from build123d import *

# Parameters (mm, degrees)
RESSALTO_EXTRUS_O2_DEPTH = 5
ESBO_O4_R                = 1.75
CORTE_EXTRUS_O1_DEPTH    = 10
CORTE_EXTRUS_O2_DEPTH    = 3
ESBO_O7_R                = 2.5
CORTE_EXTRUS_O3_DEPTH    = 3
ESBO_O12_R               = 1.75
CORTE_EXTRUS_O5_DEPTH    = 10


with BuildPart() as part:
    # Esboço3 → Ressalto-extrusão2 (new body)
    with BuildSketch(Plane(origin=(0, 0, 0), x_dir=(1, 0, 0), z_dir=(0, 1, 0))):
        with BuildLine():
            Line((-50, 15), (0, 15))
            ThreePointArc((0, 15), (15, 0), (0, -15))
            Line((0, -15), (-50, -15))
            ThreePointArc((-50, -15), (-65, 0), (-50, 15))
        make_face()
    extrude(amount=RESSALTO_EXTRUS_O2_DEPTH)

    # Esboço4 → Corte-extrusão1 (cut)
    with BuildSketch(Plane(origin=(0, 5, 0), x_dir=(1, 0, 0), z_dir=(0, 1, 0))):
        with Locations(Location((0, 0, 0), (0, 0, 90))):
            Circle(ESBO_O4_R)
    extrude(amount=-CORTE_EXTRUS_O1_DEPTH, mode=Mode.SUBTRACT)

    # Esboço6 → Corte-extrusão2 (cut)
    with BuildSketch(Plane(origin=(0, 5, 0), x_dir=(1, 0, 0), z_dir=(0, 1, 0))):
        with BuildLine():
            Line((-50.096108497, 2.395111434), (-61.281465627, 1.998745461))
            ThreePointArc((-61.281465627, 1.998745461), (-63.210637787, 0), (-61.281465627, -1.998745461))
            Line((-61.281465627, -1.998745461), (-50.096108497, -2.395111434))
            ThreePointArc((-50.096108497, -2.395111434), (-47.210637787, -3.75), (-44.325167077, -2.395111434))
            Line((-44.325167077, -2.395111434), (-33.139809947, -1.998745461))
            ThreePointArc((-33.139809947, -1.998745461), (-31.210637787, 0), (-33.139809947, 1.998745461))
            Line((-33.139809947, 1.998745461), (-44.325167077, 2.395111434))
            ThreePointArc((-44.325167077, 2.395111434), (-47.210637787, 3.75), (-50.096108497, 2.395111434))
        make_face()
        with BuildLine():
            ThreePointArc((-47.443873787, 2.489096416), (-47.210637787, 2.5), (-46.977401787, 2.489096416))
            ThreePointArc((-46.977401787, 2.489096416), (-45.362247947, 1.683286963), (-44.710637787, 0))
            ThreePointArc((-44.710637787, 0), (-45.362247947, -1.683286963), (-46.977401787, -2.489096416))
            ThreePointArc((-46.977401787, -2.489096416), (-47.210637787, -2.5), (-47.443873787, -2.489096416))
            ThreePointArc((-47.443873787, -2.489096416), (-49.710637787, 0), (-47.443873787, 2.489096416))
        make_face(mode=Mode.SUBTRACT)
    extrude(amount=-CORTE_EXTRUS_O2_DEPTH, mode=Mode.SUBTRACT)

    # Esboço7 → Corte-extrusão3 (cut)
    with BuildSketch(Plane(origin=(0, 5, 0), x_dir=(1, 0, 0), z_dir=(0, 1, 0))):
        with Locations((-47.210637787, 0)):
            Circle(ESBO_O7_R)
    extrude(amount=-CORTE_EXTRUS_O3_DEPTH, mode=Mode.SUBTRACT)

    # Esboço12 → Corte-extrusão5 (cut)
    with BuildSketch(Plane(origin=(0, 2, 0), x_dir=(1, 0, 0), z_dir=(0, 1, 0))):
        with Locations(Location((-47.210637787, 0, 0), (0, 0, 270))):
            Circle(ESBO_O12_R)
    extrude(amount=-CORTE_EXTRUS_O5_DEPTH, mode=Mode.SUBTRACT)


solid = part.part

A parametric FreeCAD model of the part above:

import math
import FreeCAD as App
import Part
import Sketcher
from FreeCAD import Vector

doc = App.newDocument("Part")
body = doc.addObject("PartDesign::Body", "Body")

# Sketch on XZ plane
sketch1 = body.newObject("Sketcher::SketchObject", "Sketch")
sketch1.AttachmentSupport = (doc.getObject("XZ_Plane"), [""])
sketch1.MapMode = "FlatFace"
sketch1.addGeometry(Part.LineSegment(Vector(0, -15, 0), Vector(-50, -15, 0)), False)
sketch1.addGeometry(Part.ArcOfCircle(Part.Circle(Vector(-50, 0, 0), Vector(0, 0, 1), 15), math.radians(90), math.radians(270)), False)
sketch1.addGeometry(Part.LineSegment(Vector(-50, 15, 0), Vector(0, 15, 0)), False)
sketch1.addGeometry(Part.ArcOfCircle(Part.Circle(Vector(0, 0, 0), Vector(0, 0, 1), 15), math.radians(-90), math.radians(90)), False)
sketch1.addConstraint(Sketcher.Constraint("Tangent", 0, 2, 1, 2))
sketch1.addConstraint(Sketcher.Constraint("Tangent", 1, 1, 2, 1))
sketch1.addConstraint(Sketcher.Constraint("Tangent", 2, 2, 3, 2))
sketch1.addConstraint(Sketcher.Constraint("Tangent", 3, 1, 0, 1))
sketch1.addConstraint(Sketcher.Constraint("Horizontal", 0))
sketch1.addConstraint(Sketcher.Constraint("Horizontal", 2))
sketch1.addConstraint(Sketcher.Constraint("Coincident", 3, 3, -1, 1))
sketch1.addConstraint(Sketcher.Constraint("Radius", 1, 15.0))
sketch1.addConstraint(Sketcher.Constraint("DistanceX", 0, 2, 0, 1, 50.0))
pad1 = body.newObject("PartDesign::Pad", "Pad")
pad1.Profile = sketch1
pad1.Length = 5
pad1.Reversed = True

# Sketch on XZ plane
sketch2 = body.newObject("Sketcher::SketchObject", "Sketch001")
sketch2.AttachmentSupport = (doc.getObject("XZ_Plane"), [""])
sketch2.MapMode = "FlatFace"
sketch2.AttachmentOffset = App.Placement(Vector(0, 0, -5), App.Rotation())
sketch2.addGeometry(Part.Circle(Vector(0, 0, 0), Vector(0, 0, 1), 1.8), False)
sketch2.addConstraint(Sketcher.Constraint("Coincident", 0, 3, -1, 1))
sketch2.addConstraint(Sketcher.Constraint("Diameter", 0, 3.5))
pocket1 = body.newObject("PartDesign::Pocket", "Pocket")
pocket1.Profile = sketch2
pocket1.Length = 10
pocket1.Reversed = True

# Sketch on XZ plane
sketch3 = body.newObject("Sketcher::SketchObject", "Sketch002")
sketch3.AttachmentSupport = (doc.getObject("XZ_Plane"), [""])
sketch3.MapMode = "FlatFace"
sketch3.AttachmentOffset = App.Placement(Vector(0, 0, -5), App.Rotation())
sketch3.addGeometry(Part.LineSegment(Vector(-50.1, -2.4, 0), Vector(-61.28, -2, 0)), False)
sketch3.addGeometry(Part.ArcOfCircle(Part.Circle(Vector(-61.21, 0, 0), Vector(0, 0, 1), 2), math.radians(92), math.radians(268)), False)
sketch3.addGeometry(Part.LineSegment(Vector(-61.28, 2, 0), Vector(-50.1, 2.4, 0)), False)
sketch3.addGeometry(Part.ArcOfCircle(Part.Circle(Vector(-47.21, 0, 0), Vector(0, 0, 1), 3.75), math.radians(40), math.radians(140)), False)
sketch3.addGeometry(Part.LineSegment(Vector(-44.33, 2.4, 0), Vector(-33.14, 2, 0)), False)
sketch3.addGeometry(Part.ArcOfCircle(Part.Circle(Vector(-33.21, 0, 0), Vector(0, 0, 1), 2), math.radians(-88), math.radians(88)), False)
sketch3.addGeometry(Part.LineSegment(Vector(-33.14, -2, 0), Vector(-44.33, -2.4, 0)), False)
sketch3.addGeometry(Part.ArcOfCircle(Part.Circle(Vector(-47.21, 0, 0), Vector(0, 0, 1), 3.75), math.radians(-140), math.radians(-40)), False)
sketch3.addGeometry(Part.ArcOfCircle(Part.Circle(Vector(-47.21, 0, 0), Vector(0, 0, 1), 2.5), math.radians(95), math.radians(265)), False)
sketch3.addGeometry(Part.ArcOfCircle(Part.Circle(Vector(-47.21, 0, 0), Vector(0, 0, 1), 2.5), math.radians(-95.35), math.radians(-84.65)), False)
sketch3.addGeometry(Part.ArcOfCircle(Part.Circle(Vector(-47.21, 0, 0), Vector(0, 0, 1), 2.5), math.radians(-85), math.radians(0)), False)
sketch3.addGeometry(Part.ArcOfCircle(Part.Circle(Vector(-47.21, 0, 0), Vector(0, 0, 1), 2.5), math.radians(0), math.radians(85)), False)
sketch3.addGeometry(Part.ArcOfCircle(Part.Circle(Vector(-47.21, 0, 0), Vector(0, 0, 1), 2.5), math.radians(84.65), math.radians(95.35)), False)
sketch3.addConstraint(Sketcher.Constraint("Tangent", 0, 2, 1, 2))
sketch3.addConstraint(Sketcher.Constraint("Tangent", 1, 1, 2, 1))
sketch3.addConstraint(Sketcher.Constraint("Coincident", 2, 2, 3, 2))
sketch3.addConstraint(Sketcher.Constraint("Coincident", 3, 1, 4, 1))
sketch3.addConstraint(Sketcher.Constraint("Tangent", 4, 2, 5, 2))
sketch3.addConstraint(Sketcher.Constraint("Tangent", 5, 1, 6, 1))
sketch3.addConstraint(Sketcher.Constraint("Coincident", 6, 2, 7, 2))
sketch3.addConstraint(Sketcher.Constraint("Coincident", 7, 1, 0, 1))
sketch3.addConstraint(Sketcher.Constraint("Tangent", 8, 2, 9, 1))
sketch3.addConstraint(Sketcher.Constraint("Tangent", 9, 2, 10, 1))
sketch3.addConstraint(Sketcher.Constraint("Tangent", 10, 2, 11, 1))
sketch3.addConstraint(Sketcher.Constraint("Tangent", 11, 2, 12, 1))
sketch3.addConstraint(Sketcher.Constraint("Tangent", 12, 2, 8, 1))
sketch3.addConstraint(Sketcher.Constraint("Coincident", 7, 3, 3, 3))
sketch3.addConstraint(Sketcher.Constraint("Coincident", 8, 3, 3, 3))
sketch3.addConstraint(Sketcher.Constraint("Coincident", 10, 3, 3, 3))
sketch3.addConstraint(Sketcher.Constraint("Equal", 1, 5))
sketch3.addConstraint(Sketcher.Constraint("Equal", 3, 7))
sketch3.addConstraint(Sketcher.Constraint("Symmetric", 0, 2, 1, 1, -1))
sketch3.addConstraint(Sketcher.Constraint("Symmetric", 4, 2, 5, 1, -1))
sketch3.addConstraint(Sketcher.Constraint("Symmetric", 9, 2, 11, 2, -1))
sketch3.addConstraint(Sketcher.Constraint("PointOnObject", 10, 2, -1))
sketch3.addConstraint(Sketcher.Constraint("Parallel", 0, 4))
sketch3.addConstraint(Sketcher.Constraint("Horizontal", 2, 2, 3, 1))
sketch3.addConstraint(Sketcher.Constraint("Horizontal", 8, 2, 9, 2))
sketch3.addConstraint(Sketcher.Constraint("Horizontal", 11, 2, 12, 2))
sketch3.addConstraint(Sketcher.Constraint("Radius", 1, 2.0))
sketch3.addConstraint(Sketcher.Constraint("Radius", 8, 2.5))
sketch3.addConstraint(Sketcher.Constraint("Radius", 3, 3.75))
sketch3.addConstraint(Sketcher.Constraint("DistanceX", 1, 3, 3, 3, 14.0))
sketch3.addConstraint(Sketcher.Constraint("DistanceX", 9, 2, -1, 1, 46.977402))
sketch3.addConstraint(Sketcher.Constraint("DistanceX", 2, 2, -1, 1, 50.096108))
sketch3.addConstraint(Sketcher.Constraint("DistanceY", -1, 1, 2, 2, 2.395111))
pocket2 = body.newObject("PartDesign::Pocket", "Pocket001")
pocket2.Profile = sketch3
pocket2.Length = 3
pocket2.Reversed = True

# Sketch on XZ plane
sketch4 = body.newObject("Sketcher::SketchObject", "Sketch003")
sketch4.AttachmentSupport = (doc.getObject("XZ_Plane"), [""])
sketch4.MapMode = "FlatFace"
sketch4.AttachmentOffset = App.Placement(Vector(0, 0, -5), App.Rotation())
sketch4.addGeometry(Part.Circle(Vector(-47.2, 0, 0), Vector(0, 0, 1), 2.5), False)
sketch4.addConstraint(Sketcher.Constraint("PointOnObject", 0, 3, -1))
sketch4.addConstraint(Sketcher.Constraint("Diameter", 0, 5.0))
sketch4.addConstraint(Sketcher.Constraint("DistanceX", 0, 3, -1, 1, 47.210638))
pocket3 = body.newObject("PartDesign::Pocket", "Pocket002")
pocket3.Profile = sketch4
pocket3.Length = 3
pocket3.Reversed = True

# Sketch on XZ plane
sketch5 = body.newObject("Sketcher::SketchObject", "Sketch004")
sketch5.AttachmentSupport = (doc.getObject("XZ_Plane"), [""])
sketch5.MapMode = "FlatFace"
sketch5.AttachmentOffset = App.Placement(Vector(0, 0, -2), App.Rotation())
sketch5.addGeometry(Part.Circle(Vector(-47.2, 0, 0), Vector(0, 0, 1), 1.8), False)
sketch5.addConstraint(Sketcher.Constraint("PointOnObject", 0, 3, -1))
sketch5.addConstraint(Sketcher.Constraint("Diameter", 0, 3.5))
sketch5.addConstraint(Sketcher.Constraint("DistanceX", 0, 3, -1, 1, 47.210638))
pocket4 = body.newObject("PartDesign::Pocket", "Pocket003")
pocket4.Profile = sketch5
pocket4.Length = 10
pocket4.Reversed = True

doc.recompute()
